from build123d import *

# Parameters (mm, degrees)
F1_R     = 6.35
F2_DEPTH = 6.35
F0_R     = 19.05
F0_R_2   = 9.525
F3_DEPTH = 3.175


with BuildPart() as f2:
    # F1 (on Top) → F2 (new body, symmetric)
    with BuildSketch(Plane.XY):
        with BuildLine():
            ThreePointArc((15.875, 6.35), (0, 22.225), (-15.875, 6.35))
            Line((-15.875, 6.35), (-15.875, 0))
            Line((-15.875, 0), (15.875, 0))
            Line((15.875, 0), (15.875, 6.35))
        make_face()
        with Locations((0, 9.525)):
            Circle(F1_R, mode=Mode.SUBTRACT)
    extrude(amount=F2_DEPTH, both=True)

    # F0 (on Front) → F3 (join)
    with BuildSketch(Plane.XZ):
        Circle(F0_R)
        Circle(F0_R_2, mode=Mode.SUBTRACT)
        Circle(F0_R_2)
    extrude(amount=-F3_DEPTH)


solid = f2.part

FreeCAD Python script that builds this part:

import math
import FreeCAD as App
import Part
import Sketcher

V = App.Vector
Q = App.Units.Quantity

doc = App.newDocument("Part")
body = doc.addObject("PartDesign::Body", "Body")

# Sketch on XY plane
sketch1 = doc.addObject("Sketcher::SketchObject", "Sketch")
body.addObject(sketch1)
sketch1.AttachmentSupport = (doc.XY_Plane, [""])
sketch1.MapMode = "FlatFace"
sketch1.addGeometry([
    Part.ArcOfCircle(Part.Circle(V(0, 6.35, 0), V(0, 0, 1), 15.875), math.radians(0), math.radians(180)),  # 0
    Part.LineSegment(V(-15.875, 6.35, 0), V(-15.875, 0, 0)),  # 1
    Part.LineSegment(V(-15.875, 0, 0), V(15.875, 0, 0)),  # 2
    Part.LineSegment(V(15.875, 0, 0), V(15.875, 6.35, 0)),  # 3
    Part.Circle(V(0, 9.525, 0), V(0, 0, 1), 6.35),  # 4
], False)
sketch1.addConstraint([
    Sketcher.Constraint("Tangent", 0, 2, 1, 1),
    Sketcher.Constraint("Coincident", 1, 2, 2, 1),
    Sketcher.Constraint("Coincident", 2, 2, 3, 1),
    Sketcher.Constraint("Tangent", 3, 2, 0, 1),
    Sketcher.Constraint("Vertical", 1),
    Sketcher.Constraint("Horizontal", 2),
    Sketcher.Constraint("Vertical", 3),
    Sketcher.Constraint("Symmetric", 1, 2, 2, 2, -1, 1),
    Sketcher.Constraint("PointOnObject", 4, 3, -2),
    Sketcher.Constraint("Diameter", 4, Q("0.5 in")),
    Sketcher.Constraint("Radius", 0, Q("0.625 in")),
    Sketcher.Constraint("DistanceY", 1, 2, 1, 1, Q("0.25 in")),
    Sketcher.Constraint("DistanceY", -1, 1, 4, 3, Q("0.375 in")),
])
pad1 = doc.addObject("PartDesign::Pad", "Pad")
body.addObject(pad1)
pad1.Profile = sketch1
pad1.Length = Q("0.5 in")
pad1.Midplane = True

# Sketch on XZ plane
sketch2 = doc.addObject("Sketcher::SketchObject", "Sketch001")
body.addObject(sketch2)
sketch2.AttachmentSupport = (doc.XZ_Plane, [""])
sketch2.MapMode = "FlatFace"
sketch2.addGeometry(Part.Circle(V(0, 0, 0), V(0, 0, 1), 19.05), False)
sketch2.addConstraint([
    Sketcher.Constraint("Coincident", 0, 3, -1, 1),
    Sketcher.Constraint("Diameter", 0, Q("1.5 in")),
])
pad2 = doc.addObject("PartDesign::Pad", "Pad001")
body.addObject(pad2)
pad2.Profile = sketch2
pad2.Length = Q("0.125 in")
pad2.Reversed = True

doc.recompute()
